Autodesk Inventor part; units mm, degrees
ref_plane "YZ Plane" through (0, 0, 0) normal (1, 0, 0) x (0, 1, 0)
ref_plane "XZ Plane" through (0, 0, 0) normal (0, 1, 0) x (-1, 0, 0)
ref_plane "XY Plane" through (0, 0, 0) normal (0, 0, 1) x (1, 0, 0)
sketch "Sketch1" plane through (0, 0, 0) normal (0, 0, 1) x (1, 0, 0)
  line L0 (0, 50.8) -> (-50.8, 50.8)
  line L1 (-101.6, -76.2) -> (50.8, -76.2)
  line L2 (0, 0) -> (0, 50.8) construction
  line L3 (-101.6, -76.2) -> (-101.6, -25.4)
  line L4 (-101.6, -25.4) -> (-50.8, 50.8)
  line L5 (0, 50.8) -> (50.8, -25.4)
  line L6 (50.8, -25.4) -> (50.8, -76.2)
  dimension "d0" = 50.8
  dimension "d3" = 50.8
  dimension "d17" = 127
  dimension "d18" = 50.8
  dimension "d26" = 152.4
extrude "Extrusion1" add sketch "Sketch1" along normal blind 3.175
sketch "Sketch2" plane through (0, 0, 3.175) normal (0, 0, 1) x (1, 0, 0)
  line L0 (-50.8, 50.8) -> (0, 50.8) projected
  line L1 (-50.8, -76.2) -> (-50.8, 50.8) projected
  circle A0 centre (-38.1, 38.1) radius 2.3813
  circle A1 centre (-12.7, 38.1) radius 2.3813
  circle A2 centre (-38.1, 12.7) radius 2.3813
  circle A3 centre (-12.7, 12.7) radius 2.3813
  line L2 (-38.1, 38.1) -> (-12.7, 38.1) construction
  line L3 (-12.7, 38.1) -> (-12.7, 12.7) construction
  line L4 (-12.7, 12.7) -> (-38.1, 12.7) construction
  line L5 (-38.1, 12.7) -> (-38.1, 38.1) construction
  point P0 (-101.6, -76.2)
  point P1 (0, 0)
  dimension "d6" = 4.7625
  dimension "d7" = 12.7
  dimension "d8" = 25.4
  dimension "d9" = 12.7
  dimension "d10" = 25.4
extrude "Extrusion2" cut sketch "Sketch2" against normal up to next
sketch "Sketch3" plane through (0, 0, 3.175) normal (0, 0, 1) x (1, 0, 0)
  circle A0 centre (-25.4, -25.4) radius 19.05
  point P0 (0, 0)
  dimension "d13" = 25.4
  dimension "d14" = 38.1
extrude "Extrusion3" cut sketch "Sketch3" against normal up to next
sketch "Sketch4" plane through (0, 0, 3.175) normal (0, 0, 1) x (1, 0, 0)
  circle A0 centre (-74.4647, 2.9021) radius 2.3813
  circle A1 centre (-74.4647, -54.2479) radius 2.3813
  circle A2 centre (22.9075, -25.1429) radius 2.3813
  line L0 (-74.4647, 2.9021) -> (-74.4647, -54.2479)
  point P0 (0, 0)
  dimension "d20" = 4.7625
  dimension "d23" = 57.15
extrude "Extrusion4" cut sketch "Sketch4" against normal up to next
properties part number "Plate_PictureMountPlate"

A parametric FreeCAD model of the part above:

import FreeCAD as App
import Part
import Sketcher

V = App.Vector
Q = App.Units.Quantity

doc = App.newDocument("Part")
params = doc.addObject("Spreadsheet::Sheet", "Params")
for row, (alias, value) in enumerate([
    ("sketch1_width", "2 in"),
    ("sketch1_width2", "6 in"),
    ("pad1_length", "0.125 in"),
    ("sketch2_diameter", "0.1875 in"),
    ("sketch3_diameter", "1.5 in"),
    ("sketch4_diameter", "0.1875 in"),
    ("pocket3_length", "0.125 in"),
], start=1):
    params.set(f"A{row}", alias)
    params.set(f"B{row}", "=" + value)
    params.setAlias(f"B{row}", alias)

body = doc.addObject("PartDesign::Body", "Body")

# Sketch on XY plane
sketch1 = body.newObject("Sketcher::SketchObject", "Sketch")
sketch1.AttachmentSupport = (doc.getObject("XY_Plane"), [""])
sketch1.MapMode = "FlatFace"
sketch1.addGeometry([
    Part.LineSegment(V(51, -25, 0), V(0, 51, 0)),  # 0
    Part.LineSegment(V(0, 51, 0), V(-51, 51, 0)),  # 1
    Part.LineSegment(V(-51, 51, 0), V(-102, -25, 0)),  # 2
    Part.LineSegment(V(-102, -25, 0), V(-102, -76, 0)),  # 3
    Part.LineSegment(V(-102, -76, 0), V(51, -76, 0)),  # 4
    Part.LineSegment(V(51, -76, 0), V(51, -25, 0)),  # 5
], False)
sketch1.addConstraint([
    Sketcher.Constraint("Coincident", 0, 2, 1, 1),
    Sketcher.Constraint("Coincident", 1, 2, 2, 1),
    Sketcher.Constraint("Coincident", 2, 2, 3, 1),
    Sketcher.Constraint("Coincident", 3, 2, 4, 1),
    Sketcher.Constraint("Coincident", 4, 2, 5, 1),
    Sketcher.Constraint("Coincident", 5, 2, 0, 1),
    Sketcher.Constraint("Horizontal", 1),
    Sketcher.Constraint("Vertical", 3),
    Sketcher.Constraint("Horizontal", 4),
    Sketcher.Constraint("Vertical", 5),
    Sketcher.Constraint("PointOnObject", 0, 2, -2),
    Sketcher.Constraint("Horizontal", 2, 2, 5, 2),
    Sketcher.Constraint("Equal", 1, 3),
    Sketcher.Constraint("Equal", 0, 2),
    Sketcher.Constraint("DistanceX", 1, 2, 1, 1, Q("2 in")),
    Sketcher.Constraint("DistanceX", 4, 1, 4, 2, Q("6 in")),
    Sketcher.Constraint("DistanceY", -1, 1, 0, 2, Q("2 in")),
    Sketcher.Constraint("DistanceY", 3, 2, 1, 2, Q("5 in")),
])
sketch1.setExpression("Constraints[14]", "Params.sketch1_width")
sketch1.setExpression("Constraints[15]", "Params.sketch1_width2")
pad1 = body.newObject("PartDesign::Pad", "Pad")
pad1.Profile = sketch1
pad1.setExpression("Length", "Params.pad1_length")

# Sketch on XY plane
sketch2 = body.newObject("Sketcher::SketchObject", "Sketch001")
sketch2.AttachmentSupport = (doc.getObject("XY_Plane"), [""])
sketch2.MapMode = "FlatFace"
sketch2.AttachmentOffset = App.Placement(V(0, 0, 0.125 * 25.4), App.Rotation())
sketch2.addGeometry([
    Part.Circle(V(-38.1, 38.1, 0), V(0, 0, 1), 2.4),
    Part.Circle(V(-12.7, 38.1, 0), V(0, 0, 1), 2.4),
    Part.Circle(V(-38.1, 12.7, 0), V(0, 0, 1), 2.4),
    Part.Circle(V(-12.7, 12.7, 0), V(0, 0, 1), 2.4),
], False)
sketch2.addConstraint([
    Sketcher.Constraint("Equal", 0, 1),
    Sketcher.Constraint("Equal", 1, 2),
    Sketcher.Constraint("Equal", 2, 3),
    Sketcher.Constraint("Horizontal", 0, 3, 1, 3),
    Sketcher.Constraint("Horizontal", 2, 3, 3, 3),
    Sketcher.Constraint("Vertical", 0, 3, 2, 3),
    Sketcher.Constraint("Vertical", 1, 3, 3, 3),
    Sketcher.Constraint("Diameter", 0, Q("0.1875 in")),
    Sketcher.Constraint("DistanceX", 0, 3, 1, 3, Q("1 in")),
    Sketcher.Constraint("DistanceY", 2, 3, 0, 3, Q("1 in")),
    Sketcher.Constraint("DistanceX", 1, 3, -1, 1, Q("0.5 in")),
    Sketcher.Constraint("DistanceY", -1, 1, 2, 3, Q("0.5 in")),
])
sketch2.setExpression("Constraints[7]", "Params.sketch2_diameter")
pocket1 = body.newObject("PartDesign::Pocket", "Pocket")
pocket1.Profile = sketch2
pocket1.Type = "UpToFirst"

# Sketch on XY plane
sketch3 = body.newObject("Sketcher::SketchObject", "Sketch002")
sketch3.AttachmentSupport = (doc.getObject("XY_Plane"), [""])
sketch3.MapMode = "FlatFace"
sketch3.AttachmentOffset = App.Placement(V(0, 0, 0.125 * 25.4), App.Rotation())
sketch3.addGeometry(Part.Circle(V(-25, -25, 0), V(0, 0, 1), 19), False)
sketch3.addConstraint([
    Sketcher.Constraint("Diameter", 0, Q("1.5 in")),
    Sketcher.Constraint("DistanceX", 0, 3, -1, 1, Q("1 in")),
    Sketcher.Constraint("DistanceY", 0, 3, -1, 1, Q("1 in")),
])
sketch3.setExpression("Constraints[0]", "Params.sketch3_diameter")
pocket2 = body.newObject("PartDesign::Pocket", "Pocket001")
pocket2.Profile = sketch3
pocket2.Type = "UpToFirst"

# Sketch on XY plane
sketch4 = body.newObject("Sketcher::SketchObject", "Sketch003")
sketch4.AttachmentSupport = (doc.getObject("XY_Plane"), [""])
sketch4.MapMode = "FlatFace"
sketch4.AttachmentOffset = App.Placement(V(0, 0, 0.125 * 25.4), App.Rotation())
sketch4.addGeometry([
    Part.Circle(V(-74.5, 2.9, 0), V(0, 0, 1), 2.4),
    Part.Circle(V(-74.5, -54.2, 0), V(0, 0, 1), 2.4),
    Part.Circle(V(22.9, -25.1, 0), V(0, 0, 1), 2.4),
], False)
sketch4.addConstraint([
    Sketcher.Constraint("Equal", 0, 1),
    Sketcher.Constraint("Equal", 1, 2),
    Sketcher.Constraint("Vertical", 0, 3, 1, 3),
    Sketcher.Constraint("Diameter", 0, Q("0.1875 in")),
    Sketcher.Constraint("DistanceY", 1, 3, 0, 3, Q("2.25 in")),
    Sketcher.Constraint("DistanceX", 0, 3, -1, 1, Q("74.4647 mm")),
    Sketcher.Constraint("DistanceY", -1, 1, 0, 3, Q("2.902 mm")),
    Sketcher.Constraint("DistanceX", -1, 1, 2, 3, Q("22.9075 mm")),
    Sketcher.Constraint("DistanceY", 2, 3, -1, 1, Q("25.143 mm")),
])
sketch4.setExpression("Constraints[3]", "Params.sketch4_diameter")
pocket3 = body.newObject("PartDesign::Pocket", "Pocket002")
pocket3.Profile = sketch4
pocket3.setExpression("Length", "Params.pocket3_length")

doc.recompute()
